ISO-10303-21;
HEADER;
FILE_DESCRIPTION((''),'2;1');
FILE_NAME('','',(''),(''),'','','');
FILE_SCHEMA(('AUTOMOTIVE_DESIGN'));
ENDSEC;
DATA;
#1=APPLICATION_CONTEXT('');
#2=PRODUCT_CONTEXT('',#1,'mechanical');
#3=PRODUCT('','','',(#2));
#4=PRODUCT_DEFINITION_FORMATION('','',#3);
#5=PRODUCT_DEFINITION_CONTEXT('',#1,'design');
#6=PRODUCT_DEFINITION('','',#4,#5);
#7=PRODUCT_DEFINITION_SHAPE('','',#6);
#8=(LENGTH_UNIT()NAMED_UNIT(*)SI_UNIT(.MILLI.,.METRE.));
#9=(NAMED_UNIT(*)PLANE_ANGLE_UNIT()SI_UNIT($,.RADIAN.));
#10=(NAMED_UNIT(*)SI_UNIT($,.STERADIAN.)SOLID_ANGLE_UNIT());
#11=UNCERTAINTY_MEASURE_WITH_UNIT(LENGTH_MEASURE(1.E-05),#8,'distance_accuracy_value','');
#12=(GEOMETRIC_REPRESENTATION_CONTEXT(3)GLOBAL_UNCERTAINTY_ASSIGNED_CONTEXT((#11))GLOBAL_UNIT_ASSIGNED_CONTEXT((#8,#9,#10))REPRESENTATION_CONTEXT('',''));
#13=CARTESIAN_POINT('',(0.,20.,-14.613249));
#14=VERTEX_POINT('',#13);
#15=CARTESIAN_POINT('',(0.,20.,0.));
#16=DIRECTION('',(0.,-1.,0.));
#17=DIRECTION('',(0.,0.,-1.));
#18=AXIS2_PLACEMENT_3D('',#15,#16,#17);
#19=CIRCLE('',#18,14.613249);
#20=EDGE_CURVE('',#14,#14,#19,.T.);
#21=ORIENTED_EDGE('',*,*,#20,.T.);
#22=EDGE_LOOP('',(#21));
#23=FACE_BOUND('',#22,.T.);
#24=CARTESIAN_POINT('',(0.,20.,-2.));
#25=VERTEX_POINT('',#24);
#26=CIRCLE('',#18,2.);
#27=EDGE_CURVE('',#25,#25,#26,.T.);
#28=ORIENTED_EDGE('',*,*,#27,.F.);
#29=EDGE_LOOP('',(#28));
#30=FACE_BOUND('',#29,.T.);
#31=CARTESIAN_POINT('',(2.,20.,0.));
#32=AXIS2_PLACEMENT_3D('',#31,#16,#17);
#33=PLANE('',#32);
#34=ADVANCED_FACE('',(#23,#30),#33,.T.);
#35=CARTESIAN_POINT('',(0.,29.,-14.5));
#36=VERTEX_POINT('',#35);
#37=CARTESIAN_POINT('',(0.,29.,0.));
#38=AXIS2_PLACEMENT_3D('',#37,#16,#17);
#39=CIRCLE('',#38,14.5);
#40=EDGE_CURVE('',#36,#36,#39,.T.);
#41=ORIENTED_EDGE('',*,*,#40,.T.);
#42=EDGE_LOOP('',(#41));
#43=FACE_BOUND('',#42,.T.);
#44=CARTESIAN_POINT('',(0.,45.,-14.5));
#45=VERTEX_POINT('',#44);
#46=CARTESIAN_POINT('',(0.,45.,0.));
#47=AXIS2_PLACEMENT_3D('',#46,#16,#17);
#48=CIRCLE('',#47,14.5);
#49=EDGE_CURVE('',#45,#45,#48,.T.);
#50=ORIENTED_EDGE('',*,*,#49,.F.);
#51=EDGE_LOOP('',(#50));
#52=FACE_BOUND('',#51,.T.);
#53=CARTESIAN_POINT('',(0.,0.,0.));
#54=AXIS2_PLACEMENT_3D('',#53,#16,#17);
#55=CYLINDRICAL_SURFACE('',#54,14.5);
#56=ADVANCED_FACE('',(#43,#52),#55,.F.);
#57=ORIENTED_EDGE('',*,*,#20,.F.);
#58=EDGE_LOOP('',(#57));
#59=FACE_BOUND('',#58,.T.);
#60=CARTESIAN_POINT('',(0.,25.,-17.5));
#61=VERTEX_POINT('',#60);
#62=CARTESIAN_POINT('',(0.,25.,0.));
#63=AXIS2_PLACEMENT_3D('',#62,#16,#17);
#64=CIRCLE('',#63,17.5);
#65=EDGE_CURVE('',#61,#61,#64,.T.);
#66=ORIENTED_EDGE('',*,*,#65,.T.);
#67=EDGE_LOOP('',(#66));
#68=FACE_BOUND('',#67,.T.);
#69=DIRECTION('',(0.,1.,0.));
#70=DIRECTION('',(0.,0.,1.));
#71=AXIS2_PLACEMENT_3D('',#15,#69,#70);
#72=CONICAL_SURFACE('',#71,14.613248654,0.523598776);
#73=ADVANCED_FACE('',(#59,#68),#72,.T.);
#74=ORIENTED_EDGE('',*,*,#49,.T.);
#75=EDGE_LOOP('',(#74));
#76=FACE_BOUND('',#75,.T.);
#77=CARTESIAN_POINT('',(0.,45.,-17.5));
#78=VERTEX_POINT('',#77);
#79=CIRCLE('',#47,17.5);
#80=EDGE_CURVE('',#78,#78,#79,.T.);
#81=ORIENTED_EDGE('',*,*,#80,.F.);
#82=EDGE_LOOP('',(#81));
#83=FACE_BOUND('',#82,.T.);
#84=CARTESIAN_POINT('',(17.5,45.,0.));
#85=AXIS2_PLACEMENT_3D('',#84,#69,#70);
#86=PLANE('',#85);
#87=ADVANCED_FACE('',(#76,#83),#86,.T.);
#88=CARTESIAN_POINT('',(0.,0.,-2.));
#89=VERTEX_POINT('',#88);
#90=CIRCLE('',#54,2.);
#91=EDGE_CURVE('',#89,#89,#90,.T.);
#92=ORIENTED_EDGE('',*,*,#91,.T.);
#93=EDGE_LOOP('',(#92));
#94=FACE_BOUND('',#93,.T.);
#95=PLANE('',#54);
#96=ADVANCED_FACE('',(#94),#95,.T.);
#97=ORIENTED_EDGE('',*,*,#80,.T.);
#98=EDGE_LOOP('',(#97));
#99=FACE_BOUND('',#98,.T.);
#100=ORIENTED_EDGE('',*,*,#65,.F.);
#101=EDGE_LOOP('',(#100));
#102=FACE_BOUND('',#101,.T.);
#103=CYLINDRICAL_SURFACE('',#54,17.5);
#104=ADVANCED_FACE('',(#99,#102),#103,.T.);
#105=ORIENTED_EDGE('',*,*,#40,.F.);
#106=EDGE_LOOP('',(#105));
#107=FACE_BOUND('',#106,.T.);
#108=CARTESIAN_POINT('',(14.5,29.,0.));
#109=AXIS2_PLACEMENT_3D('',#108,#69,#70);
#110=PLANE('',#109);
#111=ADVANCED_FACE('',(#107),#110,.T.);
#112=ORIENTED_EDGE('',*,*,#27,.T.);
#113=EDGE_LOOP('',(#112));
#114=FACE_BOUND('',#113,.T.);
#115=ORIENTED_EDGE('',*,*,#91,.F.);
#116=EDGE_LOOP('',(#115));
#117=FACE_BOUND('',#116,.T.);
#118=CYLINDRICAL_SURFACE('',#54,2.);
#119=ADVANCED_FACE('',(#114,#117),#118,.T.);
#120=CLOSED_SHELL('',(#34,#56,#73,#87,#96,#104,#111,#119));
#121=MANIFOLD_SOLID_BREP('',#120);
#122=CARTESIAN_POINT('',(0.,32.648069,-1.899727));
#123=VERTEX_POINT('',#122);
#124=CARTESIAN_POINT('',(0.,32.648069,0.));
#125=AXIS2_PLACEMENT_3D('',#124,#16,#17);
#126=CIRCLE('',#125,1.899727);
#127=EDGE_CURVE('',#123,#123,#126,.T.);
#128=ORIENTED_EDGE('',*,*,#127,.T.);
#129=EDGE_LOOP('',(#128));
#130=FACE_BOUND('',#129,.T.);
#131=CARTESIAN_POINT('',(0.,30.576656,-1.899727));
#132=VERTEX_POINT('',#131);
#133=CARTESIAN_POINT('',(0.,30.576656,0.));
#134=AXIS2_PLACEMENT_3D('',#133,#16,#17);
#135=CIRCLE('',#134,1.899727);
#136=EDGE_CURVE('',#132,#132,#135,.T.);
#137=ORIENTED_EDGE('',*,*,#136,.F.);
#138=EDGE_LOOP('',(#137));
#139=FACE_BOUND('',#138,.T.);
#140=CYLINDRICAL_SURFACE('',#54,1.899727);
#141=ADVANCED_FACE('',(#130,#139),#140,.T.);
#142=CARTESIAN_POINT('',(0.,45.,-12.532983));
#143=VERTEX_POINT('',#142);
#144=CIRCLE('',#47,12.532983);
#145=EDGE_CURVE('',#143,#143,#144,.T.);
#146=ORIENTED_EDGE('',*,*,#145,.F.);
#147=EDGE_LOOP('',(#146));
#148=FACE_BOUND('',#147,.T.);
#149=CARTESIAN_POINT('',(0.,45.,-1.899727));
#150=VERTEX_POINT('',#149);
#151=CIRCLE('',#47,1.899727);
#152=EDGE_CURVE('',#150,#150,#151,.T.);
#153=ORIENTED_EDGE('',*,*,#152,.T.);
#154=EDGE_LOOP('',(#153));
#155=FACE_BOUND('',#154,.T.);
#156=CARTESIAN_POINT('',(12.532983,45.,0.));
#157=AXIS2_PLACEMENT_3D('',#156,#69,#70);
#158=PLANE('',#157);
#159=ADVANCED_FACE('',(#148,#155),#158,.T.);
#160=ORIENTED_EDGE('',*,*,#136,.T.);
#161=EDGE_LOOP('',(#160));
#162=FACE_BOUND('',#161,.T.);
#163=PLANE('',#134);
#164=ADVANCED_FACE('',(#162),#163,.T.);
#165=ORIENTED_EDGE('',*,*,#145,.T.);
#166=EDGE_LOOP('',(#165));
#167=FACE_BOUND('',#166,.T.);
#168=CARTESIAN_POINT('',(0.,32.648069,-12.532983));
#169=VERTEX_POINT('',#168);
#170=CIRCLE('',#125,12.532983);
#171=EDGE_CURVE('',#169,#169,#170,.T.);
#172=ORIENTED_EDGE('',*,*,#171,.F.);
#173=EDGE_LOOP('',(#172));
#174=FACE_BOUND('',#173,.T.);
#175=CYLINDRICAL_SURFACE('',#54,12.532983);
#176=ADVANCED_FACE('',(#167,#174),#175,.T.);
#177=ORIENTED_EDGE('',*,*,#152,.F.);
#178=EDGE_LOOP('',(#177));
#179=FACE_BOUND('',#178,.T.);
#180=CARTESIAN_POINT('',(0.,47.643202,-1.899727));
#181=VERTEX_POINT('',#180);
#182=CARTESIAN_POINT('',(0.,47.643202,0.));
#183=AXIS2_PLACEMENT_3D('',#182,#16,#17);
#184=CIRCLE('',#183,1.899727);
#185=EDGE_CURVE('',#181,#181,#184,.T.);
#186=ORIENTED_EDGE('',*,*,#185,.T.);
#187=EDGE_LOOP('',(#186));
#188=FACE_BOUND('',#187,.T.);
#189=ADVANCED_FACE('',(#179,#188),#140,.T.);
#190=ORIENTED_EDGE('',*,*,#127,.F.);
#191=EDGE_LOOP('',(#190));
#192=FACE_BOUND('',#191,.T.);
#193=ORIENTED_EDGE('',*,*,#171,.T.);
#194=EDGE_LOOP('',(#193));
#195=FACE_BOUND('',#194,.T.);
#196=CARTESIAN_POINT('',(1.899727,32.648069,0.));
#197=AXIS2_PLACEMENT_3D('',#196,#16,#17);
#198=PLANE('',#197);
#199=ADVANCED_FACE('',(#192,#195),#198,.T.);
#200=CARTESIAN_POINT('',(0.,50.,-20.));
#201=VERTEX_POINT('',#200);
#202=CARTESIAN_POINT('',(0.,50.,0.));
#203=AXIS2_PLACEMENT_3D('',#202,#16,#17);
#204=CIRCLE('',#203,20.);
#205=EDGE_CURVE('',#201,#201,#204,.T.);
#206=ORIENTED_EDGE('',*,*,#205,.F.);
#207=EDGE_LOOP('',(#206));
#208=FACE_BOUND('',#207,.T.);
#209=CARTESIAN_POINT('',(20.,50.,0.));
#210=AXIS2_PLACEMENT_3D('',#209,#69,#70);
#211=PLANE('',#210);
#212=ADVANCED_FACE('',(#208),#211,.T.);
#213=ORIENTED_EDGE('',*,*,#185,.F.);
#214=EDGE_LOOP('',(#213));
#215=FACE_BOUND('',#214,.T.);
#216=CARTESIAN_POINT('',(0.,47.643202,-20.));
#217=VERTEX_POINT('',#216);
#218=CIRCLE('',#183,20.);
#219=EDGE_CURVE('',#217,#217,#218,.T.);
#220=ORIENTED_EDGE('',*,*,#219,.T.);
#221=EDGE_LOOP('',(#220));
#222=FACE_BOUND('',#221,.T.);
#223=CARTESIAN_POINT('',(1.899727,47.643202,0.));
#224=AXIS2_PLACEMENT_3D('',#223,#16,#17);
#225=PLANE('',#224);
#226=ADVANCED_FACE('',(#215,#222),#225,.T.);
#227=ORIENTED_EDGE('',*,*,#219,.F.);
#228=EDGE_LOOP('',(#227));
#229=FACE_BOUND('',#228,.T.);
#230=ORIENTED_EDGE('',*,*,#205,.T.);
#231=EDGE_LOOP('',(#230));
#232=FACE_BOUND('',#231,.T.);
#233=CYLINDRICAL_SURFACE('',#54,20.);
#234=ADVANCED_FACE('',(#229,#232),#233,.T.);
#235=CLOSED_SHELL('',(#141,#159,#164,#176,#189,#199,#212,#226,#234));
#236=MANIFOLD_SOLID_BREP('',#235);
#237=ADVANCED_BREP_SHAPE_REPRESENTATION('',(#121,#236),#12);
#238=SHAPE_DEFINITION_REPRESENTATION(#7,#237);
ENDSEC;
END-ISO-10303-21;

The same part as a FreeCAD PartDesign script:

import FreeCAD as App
import Part
import Sketcher

V = App.Vector
Q = App.Units.Quantity

doc = App.newDocument("Part")
body = doc.addObject("PartDesign::Body", "Body")

# Sketch on XY plane
sketch1 = body.newObject("Sketcher::SketchObject", "Sketch")
sketch1.AttachmentSupport = (doc.getObject("XY_Plane"), [""])
sketch1.MapMode = "FlatFace"
sketch1.addGeometry([
    Part.LineSegment(V(0, 0, 0), V(2, 0, 0)),  # 0
    Part.LineSegment(V(2, 0, 0), V(2, 20, 0)),  # 1
    Part.LineSegment(V(2, 20, 0), V(14.6, 20, 0)),  # 2
    Part.LineSegment(V(14.6, 20, 0), V(17.5, 25, 0)),  # 3
    Part.LineSegment(V(17.5, 25, 0), V(17.5, 45, 0)),  # 4
    Part.LineSegment(V(17.5, 45, 0), V(14.5, 45, 0)),  # 5
    Part.LineSegment(V(14.5, 45, 0), V(14.5, 29, 0)),  # 6
    Part.LineSegment(V(14.5, 29, 0), V(0, 29, 0)),  # 7
    Part.LineSegment(V(0, 29, 0), V(0, 0, 0)),  # 8
], False)
sketch1.addConstraint([
    Sketcher.Constraint("Coincident", 0, 2, 1, 1),
    Sketcher.Constraint("Coincident", 1, 2, 2, 1),
    Sketcher.Constraint("Coincident", 2, 2, 3, 1),
    Sketcher.Constraint("Coincident", 3, 2, 4, 1),
    Sketcher.Constraint("Coincident", 4, 2, 5, 1),
    Sketcher.Constraint("Coincident", 5, 2, 6, 1),
    Sketcher.Constraint("Coincident", 6, 2, 7, 1),
    Sketcher.Constraint("Coincident", 7, 2, 8, 1),
    Sketcher.Constraint("Coincident", 8, 2, 0, 1),
    Sketcher.Constraint("Horizontal", 0),
    Sketcher.Constraint("Vertical", 1),
    Sketcher.Constraint("Horizontal", 2),
    Sketcher.Constraint("Vertical", 4),
    Sketcher.Constraint("Horizontal", 5),
    Sketcher.Constraint("Vertical", 6),
    Sketcher.Constraint("Horizontal", 7),
    Sketcher.Constraint("Vertical", 8),
    Sketcher.Constraint("Coincident", 8, 2, -1, 1),
    Sketcher.Constraint("Equal", 1, 4),
    Sketcher.Constraint("DistanceX", 0, 1, 0, 2, Q("2 mm")),
    Sketcher.Constraint("DistanceX", 5, 2, 5, 1, Q("3 mm")),
    Sketcher.Constraint("DistanceY", 1, 1, 1, 2, Q("20 mm")),
    Sketcher.Constraint("DistanceY", 6, 2, 6, 1, Q("16 mm")),
    Sketcher.Constraint("DistanceY", 8, 2, 8, 1, Q("29 mm")),
    Sketcher.Constraint("Angle", 3, Q("60 deg")),
    Sketcher.Constraint("DistanceX", 7, 2, 7, 1, Q("14.5 mm")),
])
revolution = body.newObject("PartDesign::Revolution", "Revolution")
revolution.Profile = sketch1
revolution.ReferenceAxis = (sketch1, ["V_Axis"])
revolution.Angle = 360
body2 = doc.addObject("PartDesign::Body", "Body001")

# Sketch on XY plane
sketch2 = body2.newObject("Sketcher::SketchObject", "Sketch001")
sketch2.AttachmentSupport = (doc.getObject("XY_Plane001"), [""])
sketch2.MapMode = "FlatFace"
sketch2.addGeometry([
    Part.LineSegment(V(0, 30.6, 0), V(1.9, 30.6, 0)),  # 0
    Part.LineSegment(V(1.9, 30.6, 0), V(1.9, 32.6, 0)),  # 1
    Part.LineSegment(V(1.9, 32.6, 0), V(12.5, 32.6, 0)),  # 2
    Part.LineSegment(V(12.5, 32.6, 0), V(12.5, 45, 0)),  # 3
    Part.LineSegment(V(12.5, 45, 0), V(1.9, 45, 0)),  # 4
    Part.LineSegment(V(1.9, 45, 0), V(1.9, 47.6, 0)),  # 5
    Part.LineSegment(V(1.9, 47.6, 0), V(20, 47.6, 0)),  # 6
    Part.LineSegment(V(20, 47.6, 0), V(20, 50, 0)),  # 7
    Part.LineSegment(V(20, 50, 0), V(0, 50, 0)),  # 8
    Part.LineSegment(V(0, 50, 0), V(0, 30.6, 0)),  # 9
], False)
sketch2.addConstraint([
    Sketcher.Constraint("Coincident", 0, 2, 1, 1),
    Sketcher.Constraint("Coincident", 1, 2, 2, 1),
    Sketcher.Constraint("Coincident", 2, 2, 3, 1),
    Sketcher.Constraint("Coincident", 3, 2, 4, 1),
    Sketcher.Constraint("Coincident", 4, 2, 5, 1),
    Sketcher.Constraint("Coincident", 5, 2, 6, 1),
    Sketcher.Constraint("Coincident", 6, 2, 7, 1),
    Sketcher.Constraint("Coincident", 7, 2, 8, 1),
    Sketcher.Constraint("Coincident", 8, 2, 9, 1),
    Sketcher.Constraint("Coincident", 9, 2, 0, 1),
    Sketcher.Constraint("Horizontal", 0),
    Sketcher.Constraint("Vertical", 1),
    Sketcher.Constraint("Horizontal", 2),
    Sketcher.Constraint("Vertical", 3),
    Sketcher.Constraint("Horizontal", 4),
    Sketcher.Constraint("Vertical", 5),
    Sketcher.Constraint("Horizontal", 6),
    Sketcher.Constraint("Vertical", 7),
    Sketcher.Constraint("Horizontal", 8),
    Sketcher.Constraint("Vertical", 9),
    Sketcher.Constraint("PointOnObject", 8, 2, -2),
    Sketcher.Constraint("Vertical", 1, 2, 4, 2),
    Sketcher.Constraint("DistanceX", 8, 2, 8, 1, Q("20 mm")),
    Sketcher.Constraint("DistanceY", -1, 1, 3, 2, Q("45 mm")),
    Sketcher.Constraint("DistanceY", -1, 1, 7, 2, Q("50 mm")),
    Sketcher.Constraint("DistanceY", 5, 1, 5, 2, Q("2.643202 mm")),
    Sketcher.Constraint("DistanceY", 3, 1, 3, 2, Q("12.351931 mm")),
    Sketcher.Constraint("DistanceX", 0, 1, 0, 2, Q("1.899727 mm")),
    Sketcher.Constraint("DistanceX", 2, 1, 2, 2, Q("10.633256 mm")),
    Sketcher.Constraint("DistanceY", 1, 1, 1, 2, Q("2.071413 mm")),
])
revolution2 = body2.newObject("PartDesign::Revolution", "Revolution001")
revolution2.Profile = sketch2
revolution2.ReferenceAxis = (sketch2, ["V_Axis"])
revolution2.Angle = 360

doc.recompute()
